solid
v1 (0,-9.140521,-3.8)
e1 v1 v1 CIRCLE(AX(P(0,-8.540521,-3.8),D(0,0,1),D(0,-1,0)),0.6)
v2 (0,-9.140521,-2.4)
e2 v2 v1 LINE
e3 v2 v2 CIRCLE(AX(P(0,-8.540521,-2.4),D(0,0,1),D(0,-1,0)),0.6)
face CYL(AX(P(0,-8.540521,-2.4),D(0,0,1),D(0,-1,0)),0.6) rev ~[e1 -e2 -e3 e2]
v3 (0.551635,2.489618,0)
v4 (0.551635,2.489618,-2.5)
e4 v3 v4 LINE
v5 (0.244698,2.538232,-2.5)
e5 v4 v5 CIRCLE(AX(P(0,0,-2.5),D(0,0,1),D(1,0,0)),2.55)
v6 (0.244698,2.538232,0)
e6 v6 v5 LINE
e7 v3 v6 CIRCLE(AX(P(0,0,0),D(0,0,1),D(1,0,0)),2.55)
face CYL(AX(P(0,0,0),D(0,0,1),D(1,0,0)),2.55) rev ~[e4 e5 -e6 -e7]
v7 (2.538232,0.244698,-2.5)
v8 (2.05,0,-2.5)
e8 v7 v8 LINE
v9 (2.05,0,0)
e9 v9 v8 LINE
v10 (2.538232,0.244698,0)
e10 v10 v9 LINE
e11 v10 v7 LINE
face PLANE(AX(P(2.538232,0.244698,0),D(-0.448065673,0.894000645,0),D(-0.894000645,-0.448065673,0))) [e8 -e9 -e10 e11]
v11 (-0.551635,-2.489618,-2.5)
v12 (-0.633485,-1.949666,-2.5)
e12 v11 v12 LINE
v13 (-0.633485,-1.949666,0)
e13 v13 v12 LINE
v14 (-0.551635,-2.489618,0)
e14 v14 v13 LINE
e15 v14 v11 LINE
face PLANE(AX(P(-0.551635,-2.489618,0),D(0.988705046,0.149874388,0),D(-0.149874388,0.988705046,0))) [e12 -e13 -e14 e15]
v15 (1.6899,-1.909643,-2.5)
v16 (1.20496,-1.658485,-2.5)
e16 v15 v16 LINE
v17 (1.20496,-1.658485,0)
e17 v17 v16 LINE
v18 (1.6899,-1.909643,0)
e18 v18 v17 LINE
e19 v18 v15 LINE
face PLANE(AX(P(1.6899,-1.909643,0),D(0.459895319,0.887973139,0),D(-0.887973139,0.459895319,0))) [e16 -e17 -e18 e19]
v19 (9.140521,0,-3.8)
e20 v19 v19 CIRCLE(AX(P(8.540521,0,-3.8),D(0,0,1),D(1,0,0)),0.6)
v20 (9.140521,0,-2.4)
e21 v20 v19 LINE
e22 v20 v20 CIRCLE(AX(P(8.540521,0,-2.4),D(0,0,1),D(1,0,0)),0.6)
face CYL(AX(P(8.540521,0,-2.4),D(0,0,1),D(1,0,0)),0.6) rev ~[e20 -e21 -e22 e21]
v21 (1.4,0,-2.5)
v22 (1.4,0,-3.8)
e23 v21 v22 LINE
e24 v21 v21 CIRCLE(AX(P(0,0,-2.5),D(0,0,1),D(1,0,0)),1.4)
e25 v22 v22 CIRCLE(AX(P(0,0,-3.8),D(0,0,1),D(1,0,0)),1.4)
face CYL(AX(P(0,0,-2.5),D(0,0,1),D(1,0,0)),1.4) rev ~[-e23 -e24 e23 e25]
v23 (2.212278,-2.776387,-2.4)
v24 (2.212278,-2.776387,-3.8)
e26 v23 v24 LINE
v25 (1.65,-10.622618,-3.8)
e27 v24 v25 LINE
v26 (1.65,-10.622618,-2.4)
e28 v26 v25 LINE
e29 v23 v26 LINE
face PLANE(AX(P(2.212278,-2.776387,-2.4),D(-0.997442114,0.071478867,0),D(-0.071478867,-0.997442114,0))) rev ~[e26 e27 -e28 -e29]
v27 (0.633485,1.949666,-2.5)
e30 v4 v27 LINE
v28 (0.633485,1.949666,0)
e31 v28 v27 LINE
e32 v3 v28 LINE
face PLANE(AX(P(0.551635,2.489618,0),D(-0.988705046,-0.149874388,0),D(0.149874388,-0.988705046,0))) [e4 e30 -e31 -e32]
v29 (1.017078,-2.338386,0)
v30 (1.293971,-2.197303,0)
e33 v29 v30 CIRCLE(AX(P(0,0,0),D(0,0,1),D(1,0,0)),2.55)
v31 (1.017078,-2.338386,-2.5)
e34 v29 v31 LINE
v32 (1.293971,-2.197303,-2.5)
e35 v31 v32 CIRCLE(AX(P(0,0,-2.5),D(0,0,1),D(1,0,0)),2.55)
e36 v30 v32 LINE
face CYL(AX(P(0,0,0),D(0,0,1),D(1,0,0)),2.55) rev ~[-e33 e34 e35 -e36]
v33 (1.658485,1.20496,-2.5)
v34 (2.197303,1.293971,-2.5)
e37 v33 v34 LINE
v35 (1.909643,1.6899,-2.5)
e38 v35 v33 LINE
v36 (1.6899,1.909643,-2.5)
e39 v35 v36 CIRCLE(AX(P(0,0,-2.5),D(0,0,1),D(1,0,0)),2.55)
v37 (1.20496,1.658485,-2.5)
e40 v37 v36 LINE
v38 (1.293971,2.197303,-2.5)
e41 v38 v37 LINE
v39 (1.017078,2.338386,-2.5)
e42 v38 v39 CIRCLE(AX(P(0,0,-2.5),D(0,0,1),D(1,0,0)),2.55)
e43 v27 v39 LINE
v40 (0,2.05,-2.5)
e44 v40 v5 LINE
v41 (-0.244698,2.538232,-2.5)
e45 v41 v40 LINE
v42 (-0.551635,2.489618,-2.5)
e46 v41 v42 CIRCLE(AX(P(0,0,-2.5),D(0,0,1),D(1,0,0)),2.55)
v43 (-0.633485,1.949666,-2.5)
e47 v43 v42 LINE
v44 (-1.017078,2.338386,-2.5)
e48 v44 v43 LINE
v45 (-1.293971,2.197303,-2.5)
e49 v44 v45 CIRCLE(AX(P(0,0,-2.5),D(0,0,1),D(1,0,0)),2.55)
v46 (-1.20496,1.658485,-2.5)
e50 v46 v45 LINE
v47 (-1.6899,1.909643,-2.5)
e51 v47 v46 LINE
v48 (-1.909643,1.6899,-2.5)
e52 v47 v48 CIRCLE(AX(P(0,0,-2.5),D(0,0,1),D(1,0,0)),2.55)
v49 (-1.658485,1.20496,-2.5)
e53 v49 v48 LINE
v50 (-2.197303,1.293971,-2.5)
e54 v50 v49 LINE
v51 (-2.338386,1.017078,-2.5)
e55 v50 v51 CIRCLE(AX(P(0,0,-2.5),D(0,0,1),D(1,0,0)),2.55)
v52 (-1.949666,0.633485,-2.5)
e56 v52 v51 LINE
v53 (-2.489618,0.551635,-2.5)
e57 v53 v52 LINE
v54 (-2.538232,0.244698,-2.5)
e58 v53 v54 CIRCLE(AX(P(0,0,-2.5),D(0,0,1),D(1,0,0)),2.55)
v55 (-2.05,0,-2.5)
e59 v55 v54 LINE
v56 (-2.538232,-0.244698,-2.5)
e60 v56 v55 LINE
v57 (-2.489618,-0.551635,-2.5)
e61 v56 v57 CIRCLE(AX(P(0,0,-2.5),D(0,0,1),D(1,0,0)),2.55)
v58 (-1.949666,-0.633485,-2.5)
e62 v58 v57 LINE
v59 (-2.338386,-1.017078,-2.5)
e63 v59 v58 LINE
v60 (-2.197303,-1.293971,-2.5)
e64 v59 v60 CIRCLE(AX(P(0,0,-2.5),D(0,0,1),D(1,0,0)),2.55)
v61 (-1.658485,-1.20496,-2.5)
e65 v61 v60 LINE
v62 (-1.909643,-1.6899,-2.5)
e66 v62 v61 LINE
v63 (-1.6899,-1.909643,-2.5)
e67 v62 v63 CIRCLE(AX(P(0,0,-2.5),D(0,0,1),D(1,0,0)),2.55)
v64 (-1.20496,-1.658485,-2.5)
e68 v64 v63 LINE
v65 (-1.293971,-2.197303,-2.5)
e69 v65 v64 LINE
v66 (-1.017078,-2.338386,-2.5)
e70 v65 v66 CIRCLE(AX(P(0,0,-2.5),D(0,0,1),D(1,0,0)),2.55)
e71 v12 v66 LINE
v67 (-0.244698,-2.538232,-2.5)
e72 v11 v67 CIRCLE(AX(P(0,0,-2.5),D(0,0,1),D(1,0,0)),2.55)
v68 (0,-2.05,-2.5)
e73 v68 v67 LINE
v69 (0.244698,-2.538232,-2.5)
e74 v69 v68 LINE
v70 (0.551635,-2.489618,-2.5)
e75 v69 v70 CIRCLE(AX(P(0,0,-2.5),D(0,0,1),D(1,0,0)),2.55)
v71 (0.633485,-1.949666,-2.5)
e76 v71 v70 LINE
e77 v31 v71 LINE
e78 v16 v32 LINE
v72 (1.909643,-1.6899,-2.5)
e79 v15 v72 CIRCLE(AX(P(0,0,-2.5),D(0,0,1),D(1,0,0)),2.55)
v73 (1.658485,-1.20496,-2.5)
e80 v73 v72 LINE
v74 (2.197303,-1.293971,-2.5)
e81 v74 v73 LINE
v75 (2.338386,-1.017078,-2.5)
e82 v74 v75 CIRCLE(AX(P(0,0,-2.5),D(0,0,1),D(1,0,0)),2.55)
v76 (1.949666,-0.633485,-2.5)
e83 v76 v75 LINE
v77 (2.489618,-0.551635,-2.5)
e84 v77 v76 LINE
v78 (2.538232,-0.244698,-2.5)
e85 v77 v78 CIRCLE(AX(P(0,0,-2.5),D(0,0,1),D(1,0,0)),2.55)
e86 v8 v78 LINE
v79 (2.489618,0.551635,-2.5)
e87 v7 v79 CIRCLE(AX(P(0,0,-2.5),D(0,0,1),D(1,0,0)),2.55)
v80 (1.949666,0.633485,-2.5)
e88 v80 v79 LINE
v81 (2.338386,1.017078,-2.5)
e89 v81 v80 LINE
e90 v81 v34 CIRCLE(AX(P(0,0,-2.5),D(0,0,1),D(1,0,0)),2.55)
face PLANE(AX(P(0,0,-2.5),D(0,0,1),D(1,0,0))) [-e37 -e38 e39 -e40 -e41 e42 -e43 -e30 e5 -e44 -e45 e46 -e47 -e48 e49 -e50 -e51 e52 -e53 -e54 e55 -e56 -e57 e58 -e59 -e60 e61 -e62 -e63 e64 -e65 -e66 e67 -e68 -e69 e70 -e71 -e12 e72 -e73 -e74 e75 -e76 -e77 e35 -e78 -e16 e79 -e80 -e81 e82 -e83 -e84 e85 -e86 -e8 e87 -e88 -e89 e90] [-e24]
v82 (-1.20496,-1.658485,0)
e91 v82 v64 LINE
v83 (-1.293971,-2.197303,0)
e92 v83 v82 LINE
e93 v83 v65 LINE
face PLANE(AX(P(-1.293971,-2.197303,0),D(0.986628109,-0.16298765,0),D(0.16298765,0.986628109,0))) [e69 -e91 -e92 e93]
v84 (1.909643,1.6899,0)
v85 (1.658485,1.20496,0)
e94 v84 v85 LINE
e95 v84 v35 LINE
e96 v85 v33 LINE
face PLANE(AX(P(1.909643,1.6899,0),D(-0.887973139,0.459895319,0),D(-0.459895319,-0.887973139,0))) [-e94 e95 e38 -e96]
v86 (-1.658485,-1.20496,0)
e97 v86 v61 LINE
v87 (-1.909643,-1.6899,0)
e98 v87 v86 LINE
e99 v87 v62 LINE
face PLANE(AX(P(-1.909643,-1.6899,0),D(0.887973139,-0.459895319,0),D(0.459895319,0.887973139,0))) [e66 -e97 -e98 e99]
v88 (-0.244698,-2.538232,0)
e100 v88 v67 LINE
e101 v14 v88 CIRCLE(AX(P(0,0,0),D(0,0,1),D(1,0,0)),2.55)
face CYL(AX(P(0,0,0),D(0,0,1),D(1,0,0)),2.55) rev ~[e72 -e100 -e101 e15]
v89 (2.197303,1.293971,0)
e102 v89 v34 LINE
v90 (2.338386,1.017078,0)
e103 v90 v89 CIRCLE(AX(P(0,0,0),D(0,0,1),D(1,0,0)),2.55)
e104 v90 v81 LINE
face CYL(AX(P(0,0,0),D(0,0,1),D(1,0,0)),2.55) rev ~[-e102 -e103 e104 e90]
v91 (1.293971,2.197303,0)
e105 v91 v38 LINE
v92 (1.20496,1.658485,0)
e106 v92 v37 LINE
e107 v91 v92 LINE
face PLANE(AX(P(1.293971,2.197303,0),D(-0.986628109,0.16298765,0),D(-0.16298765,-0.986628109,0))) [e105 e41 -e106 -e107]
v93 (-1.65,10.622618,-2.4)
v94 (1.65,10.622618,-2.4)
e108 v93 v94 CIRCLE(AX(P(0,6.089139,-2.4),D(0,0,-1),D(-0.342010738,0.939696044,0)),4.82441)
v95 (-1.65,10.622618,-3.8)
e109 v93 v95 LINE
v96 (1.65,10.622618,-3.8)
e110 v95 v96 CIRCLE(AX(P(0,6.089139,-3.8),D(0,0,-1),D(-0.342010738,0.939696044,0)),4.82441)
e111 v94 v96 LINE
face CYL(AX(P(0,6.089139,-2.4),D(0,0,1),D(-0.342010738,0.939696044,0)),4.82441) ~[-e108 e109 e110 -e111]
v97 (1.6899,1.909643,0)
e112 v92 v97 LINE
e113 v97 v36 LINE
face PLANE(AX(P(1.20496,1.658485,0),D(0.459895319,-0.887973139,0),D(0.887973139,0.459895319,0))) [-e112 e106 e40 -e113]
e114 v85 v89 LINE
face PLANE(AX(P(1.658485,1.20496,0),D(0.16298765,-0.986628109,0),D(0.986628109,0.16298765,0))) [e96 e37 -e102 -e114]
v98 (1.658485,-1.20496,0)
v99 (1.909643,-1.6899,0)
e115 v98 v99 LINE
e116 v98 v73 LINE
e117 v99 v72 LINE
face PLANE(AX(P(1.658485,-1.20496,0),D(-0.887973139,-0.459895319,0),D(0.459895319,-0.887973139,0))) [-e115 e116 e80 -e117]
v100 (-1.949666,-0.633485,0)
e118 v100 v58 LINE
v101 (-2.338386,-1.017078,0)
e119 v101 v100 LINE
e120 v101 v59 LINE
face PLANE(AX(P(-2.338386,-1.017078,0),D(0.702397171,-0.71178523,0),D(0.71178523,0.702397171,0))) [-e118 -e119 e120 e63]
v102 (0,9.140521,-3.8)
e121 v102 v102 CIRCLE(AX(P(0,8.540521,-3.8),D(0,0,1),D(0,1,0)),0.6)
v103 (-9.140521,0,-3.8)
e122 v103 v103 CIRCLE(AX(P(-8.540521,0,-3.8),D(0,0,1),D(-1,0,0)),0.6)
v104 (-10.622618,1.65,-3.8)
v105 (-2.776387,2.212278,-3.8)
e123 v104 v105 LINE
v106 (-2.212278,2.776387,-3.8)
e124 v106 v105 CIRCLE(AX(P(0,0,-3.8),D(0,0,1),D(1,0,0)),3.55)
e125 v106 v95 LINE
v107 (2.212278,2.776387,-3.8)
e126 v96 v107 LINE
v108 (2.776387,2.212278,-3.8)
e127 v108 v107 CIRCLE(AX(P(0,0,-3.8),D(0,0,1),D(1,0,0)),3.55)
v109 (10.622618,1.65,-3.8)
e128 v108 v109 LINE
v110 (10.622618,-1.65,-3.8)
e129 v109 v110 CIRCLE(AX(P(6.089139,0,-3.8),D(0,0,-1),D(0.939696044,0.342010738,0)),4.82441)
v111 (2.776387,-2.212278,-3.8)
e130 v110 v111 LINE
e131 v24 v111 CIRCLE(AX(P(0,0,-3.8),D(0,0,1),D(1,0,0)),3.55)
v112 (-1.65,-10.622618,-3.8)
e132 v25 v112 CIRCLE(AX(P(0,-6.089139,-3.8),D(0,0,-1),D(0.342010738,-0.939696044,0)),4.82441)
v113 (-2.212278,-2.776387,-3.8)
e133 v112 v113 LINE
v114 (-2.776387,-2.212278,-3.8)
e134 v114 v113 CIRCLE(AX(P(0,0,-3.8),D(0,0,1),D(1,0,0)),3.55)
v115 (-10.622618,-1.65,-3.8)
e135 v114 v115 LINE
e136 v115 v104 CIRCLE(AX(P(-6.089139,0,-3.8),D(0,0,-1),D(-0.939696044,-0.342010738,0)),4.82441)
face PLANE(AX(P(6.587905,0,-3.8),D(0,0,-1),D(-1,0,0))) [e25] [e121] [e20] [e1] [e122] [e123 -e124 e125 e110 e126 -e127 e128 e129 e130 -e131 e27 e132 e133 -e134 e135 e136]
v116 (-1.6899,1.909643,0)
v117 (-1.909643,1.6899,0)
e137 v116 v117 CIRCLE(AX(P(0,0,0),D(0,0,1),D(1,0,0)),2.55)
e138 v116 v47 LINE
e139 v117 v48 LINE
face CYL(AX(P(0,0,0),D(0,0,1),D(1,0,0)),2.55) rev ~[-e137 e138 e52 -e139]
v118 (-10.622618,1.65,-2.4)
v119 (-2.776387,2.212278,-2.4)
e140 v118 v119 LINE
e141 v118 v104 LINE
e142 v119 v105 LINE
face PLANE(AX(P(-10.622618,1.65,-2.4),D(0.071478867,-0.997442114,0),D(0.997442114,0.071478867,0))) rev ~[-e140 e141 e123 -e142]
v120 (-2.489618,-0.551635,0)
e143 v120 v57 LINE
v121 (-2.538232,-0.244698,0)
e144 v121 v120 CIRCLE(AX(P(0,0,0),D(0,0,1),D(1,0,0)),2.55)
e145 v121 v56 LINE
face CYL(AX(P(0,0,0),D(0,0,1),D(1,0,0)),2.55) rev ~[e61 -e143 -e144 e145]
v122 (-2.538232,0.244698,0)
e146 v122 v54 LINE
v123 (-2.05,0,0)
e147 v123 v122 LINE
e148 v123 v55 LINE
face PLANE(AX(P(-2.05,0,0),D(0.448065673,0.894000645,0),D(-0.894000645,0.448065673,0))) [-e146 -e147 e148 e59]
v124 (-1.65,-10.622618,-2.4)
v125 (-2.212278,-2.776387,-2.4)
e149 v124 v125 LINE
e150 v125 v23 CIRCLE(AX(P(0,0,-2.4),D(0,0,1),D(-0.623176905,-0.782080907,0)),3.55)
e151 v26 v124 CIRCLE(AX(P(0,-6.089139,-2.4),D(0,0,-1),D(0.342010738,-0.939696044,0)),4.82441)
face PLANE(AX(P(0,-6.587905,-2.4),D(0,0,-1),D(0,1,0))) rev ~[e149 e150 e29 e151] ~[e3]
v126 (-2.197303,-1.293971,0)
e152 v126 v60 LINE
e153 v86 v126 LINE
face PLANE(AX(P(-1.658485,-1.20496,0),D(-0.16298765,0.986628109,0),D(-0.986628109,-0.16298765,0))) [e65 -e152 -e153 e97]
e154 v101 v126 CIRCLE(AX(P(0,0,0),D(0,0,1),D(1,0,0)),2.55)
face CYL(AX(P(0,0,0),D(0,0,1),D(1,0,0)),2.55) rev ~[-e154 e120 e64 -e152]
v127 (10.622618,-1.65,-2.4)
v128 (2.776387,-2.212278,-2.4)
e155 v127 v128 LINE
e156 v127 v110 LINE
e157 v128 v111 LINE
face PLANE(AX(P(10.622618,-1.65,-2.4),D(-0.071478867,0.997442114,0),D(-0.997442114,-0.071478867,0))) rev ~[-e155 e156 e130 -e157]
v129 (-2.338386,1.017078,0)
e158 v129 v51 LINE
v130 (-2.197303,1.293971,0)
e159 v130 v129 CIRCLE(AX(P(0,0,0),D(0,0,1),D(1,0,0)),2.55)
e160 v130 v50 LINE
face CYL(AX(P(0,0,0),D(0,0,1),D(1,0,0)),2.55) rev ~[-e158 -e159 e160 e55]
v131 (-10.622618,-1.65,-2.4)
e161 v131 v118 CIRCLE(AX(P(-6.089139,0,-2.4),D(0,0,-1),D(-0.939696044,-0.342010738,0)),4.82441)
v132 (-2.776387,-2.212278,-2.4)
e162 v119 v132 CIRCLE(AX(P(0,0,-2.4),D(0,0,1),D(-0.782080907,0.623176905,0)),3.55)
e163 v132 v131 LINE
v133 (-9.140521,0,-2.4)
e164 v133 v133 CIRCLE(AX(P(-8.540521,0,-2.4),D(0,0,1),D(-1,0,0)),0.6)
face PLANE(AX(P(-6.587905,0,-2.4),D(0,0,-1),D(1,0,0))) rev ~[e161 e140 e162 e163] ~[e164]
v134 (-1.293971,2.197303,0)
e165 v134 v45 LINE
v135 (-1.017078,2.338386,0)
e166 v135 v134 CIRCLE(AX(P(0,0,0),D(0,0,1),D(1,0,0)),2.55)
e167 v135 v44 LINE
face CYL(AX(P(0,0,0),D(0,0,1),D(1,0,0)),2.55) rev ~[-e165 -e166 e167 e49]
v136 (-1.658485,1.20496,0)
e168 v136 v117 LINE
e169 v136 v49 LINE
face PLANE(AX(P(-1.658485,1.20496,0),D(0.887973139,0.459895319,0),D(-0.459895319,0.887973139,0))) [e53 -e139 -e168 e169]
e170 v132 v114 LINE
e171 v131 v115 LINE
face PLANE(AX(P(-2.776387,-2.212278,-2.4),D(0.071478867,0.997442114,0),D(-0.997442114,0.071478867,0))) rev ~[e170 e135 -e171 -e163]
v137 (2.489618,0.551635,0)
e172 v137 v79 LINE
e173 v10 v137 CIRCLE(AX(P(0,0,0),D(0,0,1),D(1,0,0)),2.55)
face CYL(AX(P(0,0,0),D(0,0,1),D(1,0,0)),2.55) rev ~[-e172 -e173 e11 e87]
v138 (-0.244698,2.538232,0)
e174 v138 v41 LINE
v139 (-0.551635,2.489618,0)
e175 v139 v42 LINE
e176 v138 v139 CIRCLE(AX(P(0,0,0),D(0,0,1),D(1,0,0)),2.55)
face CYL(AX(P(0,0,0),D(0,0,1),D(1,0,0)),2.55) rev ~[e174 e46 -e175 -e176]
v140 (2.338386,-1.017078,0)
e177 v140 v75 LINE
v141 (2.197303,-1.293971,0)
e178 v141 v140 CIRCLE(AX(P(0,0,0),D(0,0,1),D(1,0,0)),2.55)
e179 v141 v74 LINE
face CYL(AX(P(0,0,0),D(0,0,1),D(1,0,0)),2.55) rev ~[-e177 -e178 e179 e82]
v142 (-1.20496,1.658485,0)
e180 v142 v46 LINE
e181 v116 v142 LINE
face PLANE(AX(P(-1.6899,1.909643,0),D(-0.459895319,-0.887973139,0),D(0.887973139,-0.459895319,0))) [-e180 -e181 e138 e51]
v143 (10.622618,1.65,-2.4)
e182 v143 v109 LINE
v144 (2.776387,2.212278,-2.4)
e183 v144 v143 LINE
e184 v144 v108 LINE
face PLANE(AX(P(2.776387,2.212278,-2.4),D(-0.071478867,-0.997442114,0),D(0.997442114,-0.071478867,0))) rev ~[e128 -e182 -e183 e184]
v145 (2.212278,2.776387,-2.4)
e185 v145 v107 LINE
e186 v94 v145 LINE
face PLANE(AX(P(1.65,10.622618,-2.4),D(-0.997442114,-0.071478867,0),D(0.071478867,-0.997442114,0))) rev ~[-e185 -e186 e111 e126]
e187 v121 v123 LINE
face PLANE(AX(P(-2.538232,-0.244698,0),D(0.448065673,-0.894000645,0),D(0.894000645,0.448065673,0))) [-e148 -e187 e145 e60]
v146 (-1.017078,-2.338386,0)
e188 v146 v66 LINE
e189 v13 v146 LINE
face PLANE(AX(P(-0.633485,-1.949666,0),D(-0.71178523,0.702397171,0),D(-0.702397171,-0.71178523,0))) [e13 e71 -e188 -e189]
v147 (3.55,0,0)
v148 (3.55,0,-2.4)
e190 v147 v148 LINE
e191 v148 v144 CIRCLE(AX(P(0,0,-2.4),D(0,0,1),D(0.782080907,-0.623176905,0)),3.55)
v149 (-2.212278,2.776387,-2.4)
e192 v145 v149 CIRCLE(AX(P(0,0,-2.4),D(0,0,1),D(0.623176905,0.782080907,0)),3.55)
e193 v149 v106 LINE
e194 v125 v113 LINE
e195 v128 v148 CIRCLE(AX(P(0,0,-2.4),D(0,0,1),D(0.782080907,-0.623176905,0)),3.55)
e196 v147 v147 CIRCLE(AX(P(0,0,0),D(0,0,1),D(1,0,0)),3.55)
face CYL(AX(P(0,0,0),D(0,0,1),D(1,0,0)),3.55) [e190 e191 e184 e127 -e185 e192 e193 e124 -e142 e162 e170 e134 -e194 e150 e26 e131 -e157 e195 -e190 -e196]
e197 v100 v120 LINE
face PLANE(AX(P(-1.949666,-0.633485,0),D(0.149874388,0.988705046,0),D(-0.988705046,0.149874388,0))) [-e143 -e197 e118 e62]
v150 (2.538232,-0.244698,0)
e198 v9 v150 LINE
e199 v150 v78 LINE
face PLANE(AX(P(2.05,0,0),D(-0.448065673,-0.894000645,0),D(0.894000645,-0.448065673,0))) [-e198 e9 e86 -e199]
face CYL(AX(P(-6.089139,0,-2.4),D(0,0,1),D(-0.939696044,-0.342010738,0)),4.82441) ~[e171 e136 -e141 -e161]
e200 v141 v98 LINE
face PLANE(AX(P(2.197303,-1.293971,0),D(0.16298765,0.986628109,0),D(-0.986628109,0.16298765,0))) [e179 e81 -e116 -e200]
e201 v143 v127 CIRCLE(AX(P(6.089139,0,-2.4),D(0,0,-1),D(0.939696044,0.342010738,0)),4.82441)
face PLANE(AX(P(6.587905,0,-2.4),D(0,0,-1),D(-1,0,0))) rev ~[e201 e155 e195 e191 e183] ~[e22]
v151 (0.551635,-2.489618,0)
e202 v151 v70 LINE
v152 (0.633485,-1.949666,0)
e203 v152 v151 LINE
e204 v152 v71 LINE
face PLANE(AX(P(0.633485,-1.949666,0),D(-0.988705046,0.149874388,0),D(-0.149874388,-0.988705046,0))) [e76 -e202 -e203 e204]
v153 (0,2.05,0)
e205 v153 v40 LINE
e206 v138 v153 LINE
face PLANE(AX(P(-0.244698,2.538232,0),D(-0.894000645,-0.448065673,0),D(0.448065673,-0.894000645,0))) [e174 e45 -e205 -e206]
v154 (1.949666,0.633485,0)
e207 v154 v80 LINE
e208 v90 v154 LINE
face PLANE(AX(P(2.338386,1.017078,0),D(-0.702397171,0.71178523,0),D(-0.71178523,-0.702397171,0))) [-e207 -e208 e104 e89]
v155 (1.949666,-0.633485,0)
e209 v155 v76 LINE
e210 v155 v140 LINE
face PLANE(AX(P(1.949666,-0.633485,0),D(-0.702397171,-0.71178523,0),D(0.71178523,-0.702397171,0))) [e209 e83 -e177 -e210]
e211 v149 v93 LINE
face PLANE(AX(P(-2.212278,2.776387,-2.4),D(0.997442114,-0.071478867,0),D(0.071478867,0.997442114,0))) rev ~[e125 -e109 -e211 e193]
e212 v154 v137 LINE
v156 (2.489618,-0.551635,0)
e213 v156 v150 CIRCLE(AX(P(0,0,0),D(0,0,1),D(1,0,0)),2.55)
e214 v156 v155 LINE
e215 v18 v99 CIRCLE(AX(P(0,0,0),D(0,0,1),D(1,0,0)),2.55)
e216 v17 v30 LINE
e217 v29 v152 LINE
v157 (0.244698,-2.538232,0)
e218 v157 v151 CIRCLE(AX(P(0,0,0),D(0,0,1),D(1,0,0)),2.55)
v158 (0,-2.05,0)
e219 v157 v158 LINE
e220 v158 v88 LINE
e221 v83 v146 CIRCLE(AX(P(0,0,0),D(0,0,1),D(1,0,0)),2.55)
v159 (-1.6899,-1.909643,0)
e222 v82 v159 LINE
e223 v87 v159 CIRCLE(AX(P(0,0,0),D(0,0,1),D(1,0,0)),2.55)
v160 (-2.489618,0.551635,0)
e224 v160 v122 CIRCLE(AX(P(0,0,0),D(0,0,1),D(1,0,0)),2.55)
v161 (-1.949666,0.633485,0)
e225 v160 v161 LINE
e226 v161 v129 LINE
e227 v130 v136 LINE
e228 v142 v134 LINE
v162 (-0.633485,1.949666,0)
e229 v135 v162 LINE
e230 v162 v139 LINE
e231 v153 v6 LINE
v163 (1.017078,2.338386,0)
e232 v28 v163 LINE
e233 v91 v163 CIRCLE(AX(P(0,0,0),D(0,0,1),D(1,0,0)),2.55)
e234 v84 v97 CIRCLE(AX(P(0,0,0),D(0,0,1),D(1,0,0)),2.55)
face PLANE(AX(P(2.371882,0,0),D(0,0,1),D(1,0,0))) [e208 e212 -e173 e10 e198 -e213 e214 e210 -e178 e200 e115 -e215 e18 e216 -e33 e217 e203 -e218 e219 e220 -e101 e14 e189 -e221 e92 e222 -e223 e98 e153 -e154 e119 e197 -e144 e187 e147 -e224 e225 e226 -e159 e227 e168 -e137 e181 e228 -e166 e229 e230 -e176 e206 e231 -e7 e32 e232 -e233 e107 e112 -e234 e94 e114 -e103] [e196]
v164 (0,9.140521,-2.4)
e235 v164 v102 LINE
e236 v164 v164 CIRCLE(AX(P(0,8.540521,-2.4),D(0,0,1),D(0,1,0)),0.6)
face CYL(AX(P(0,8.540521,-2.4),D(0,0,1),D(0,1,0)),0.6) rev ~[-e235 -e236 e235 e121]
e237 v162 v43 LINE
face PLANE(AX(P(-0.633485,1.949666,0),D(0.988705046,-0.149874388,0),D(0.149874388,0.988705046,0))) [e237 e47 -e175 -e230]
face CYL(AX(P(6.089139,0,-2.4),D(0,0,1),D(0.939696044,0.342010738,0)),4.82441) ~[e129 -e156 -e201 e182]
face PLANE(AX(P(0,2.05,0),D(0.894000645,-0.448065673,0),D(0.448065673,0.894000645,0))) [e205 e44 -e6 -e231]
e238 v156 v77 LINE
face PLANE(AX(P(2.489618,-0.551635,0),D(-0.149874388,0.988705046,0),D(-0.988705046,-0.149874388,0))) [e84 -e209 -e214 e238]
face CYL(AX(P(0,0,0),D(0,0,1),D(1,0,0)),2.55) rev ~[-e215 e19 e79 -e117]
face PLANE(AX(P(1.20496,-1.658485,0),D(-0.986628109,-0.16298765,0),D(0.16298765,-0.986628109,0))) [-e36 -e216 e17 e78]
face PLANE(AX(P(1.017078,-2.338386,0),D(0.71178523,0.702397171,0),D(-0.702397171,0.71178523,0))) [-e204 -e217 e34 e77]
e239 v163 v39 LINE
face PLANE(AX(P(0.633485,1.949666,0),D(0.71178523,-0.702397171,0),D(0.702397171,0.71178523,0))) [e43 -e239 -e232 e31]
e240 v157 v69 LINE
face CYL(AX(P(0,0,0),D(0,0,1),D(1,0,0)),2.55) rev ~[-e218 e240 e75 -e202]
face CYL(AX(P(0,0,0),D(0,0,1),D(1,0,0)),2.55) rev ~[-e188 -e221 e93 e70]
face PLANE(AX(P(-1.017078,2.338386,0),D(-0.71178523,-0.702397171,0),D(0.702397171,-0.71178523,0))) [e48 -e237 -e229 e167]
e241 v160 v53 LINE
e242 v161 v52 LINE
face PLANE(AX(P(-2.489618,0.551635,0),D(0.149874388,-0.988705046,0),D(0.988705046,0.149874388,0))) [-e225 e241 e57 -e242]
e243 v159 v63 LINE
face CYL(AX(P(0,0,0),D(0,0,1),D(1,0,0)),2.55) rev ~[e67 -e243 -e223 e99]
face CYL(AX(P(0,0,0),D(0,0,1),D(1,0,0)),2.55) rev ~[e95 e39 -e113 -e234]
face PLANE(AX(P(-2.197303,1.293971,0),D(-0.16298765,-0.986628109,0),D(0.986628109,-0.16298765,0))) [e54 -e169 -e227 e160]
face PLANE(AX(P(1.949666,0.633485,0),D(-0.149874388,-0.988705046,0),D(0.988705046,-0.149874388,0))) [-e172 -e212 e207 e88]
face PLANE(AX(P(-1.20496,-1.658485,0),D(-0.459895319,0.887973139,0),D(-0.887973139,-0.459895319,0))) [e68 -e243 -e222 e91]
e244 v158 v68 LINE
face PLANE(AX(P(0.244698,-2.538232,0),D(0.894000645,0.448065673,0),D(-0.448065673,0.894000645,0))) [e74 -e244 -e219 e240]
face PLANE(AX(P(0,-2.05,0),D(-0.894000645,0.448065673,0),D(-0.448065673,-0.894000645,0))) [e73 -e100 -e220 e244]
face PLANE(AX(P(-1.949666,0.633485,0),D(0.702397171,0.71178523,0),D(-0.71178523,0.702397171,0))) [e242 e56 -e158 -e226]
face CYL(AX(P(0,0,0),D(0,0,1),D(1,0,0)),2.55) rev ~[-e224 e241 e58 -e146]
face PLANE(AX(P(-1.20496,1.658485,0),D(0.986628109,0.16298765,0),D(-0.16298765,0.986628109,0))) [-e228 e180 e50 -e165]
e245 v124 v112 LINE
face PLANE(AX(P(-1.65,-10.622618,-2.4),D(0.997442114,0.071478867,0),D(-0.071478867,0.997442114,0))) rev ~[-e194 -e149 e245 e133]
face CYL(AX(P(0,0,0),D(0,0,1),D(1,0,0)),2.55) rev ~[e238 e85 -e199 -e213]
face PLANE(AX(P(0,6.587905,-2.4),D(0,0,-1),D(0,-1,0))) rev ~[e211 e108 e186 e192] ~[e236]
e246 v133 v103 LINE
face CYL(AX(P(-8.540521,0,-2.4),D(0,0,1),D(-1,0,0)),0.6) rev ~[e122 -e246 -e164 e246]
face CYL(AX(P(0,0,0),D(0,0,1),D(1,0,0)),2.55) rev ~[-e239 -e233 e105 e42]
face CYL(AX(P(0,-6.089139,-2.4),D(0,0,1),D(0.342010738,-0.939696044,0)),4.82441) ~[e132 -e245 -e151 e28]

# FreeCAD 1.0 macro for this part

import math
import FreeCAD as App
import Part
import Sketcher

V = App.Vector
Q = App.Units.Quantity

doc = App.newDocument("Part")
params = doc.addObject("Spreadsheet::Sheet", "Params")
for row, (alias, value) in enumerate([
    ("sketch1_diameter", "7.1 mm"),
    ("pad1_length", "3.8 mm"),
    ("sketch2_radius", "3.55 mm"),
    ("pad2_length", "1.4 mm"),
    ("sketch3_diameter", "5.1 mm"),
    ("pocket1_length", "2.5 mm"),
    ("sketch4_radius", "2.55 mm"),
    ("pad3_length", "2.5 mm"),
    ("sketch5_diameter", "2.8 mm"),
    ("sketch6_diameter", "1.2 mm"),
], start=1):
    params.set(f"A{row}", alias)
    params.set(f"B{row}", "=" + value)
    params.setAlias(f"B{row}", alias)

body = doc.addObject("PartDesign::Body", "Body")

# Sketch on XY plane
sketch1 = doc.addObject("Sketcher::SketchObject", "Sketch")
body.addObject(sketch1)
sketch1.AttachmentSupport = (doc.XY_Plane, [""])
sketch1.MapMode = "FlatFace"
sketch1.addGeometry(Part.Circle(V(0, 0, 0), V(0, 0, 1), 3.5), False)
sketch1.addConstraint(Sketcher.Constraint("Coincident", 0, 3, -1, 1))
sketch1.addConstraint(Sketcher.Constraint("Diameter", 0, Q("7.1 mm")))
sketch1.setExpression("Constraints[1]", "Params.sketch1_diameter")
pad1 = doc.addObject("PartDesign::Pad", "Pad")
body.addObject(pad1)
pad1.Profile = sketch1
pad1.setExpression("Length", "Params.pad1_length")
pad1.Reversed = True

# Sketch on XY plane
sketch2 = doc.addObject("Sketcher::SketchObject", "Sketch001")
body.addObject(sketch2)
sketch2.AttachmentSupport = (doc.XY_Plane, [""])
sketch2.MapMode = "FlatFace"
sketch2.AttachmentOffset = App.Placement(V(0, 0, -2.4), App.Rotation())
sketch2.addGeometry(Part.LineSegment(V(10.6, 1.6, 0), V(2.8, 2.2, 0)), False)
sketch2.addGeometry(Part.ArcOfCircle(Part.Circle(V(0, 0, 0), V(0, 0, 1), 3.5), math.radians(-39), math.radians(39)), False)
sketch2.addGeometry(Part.LineSegment(V(2.8, -2.2, 0), V(10.6, -1.6, 0)), False)
sketch2.addGeometry(Part.ArcOfCircle(Part.Circle(V(6.1, 0, 0), V(0, 0, 1), 4.8), math.radians(-20), math.radians(20)), False)
sketch2.addConstraint(Sketcher.Constraint("Coincident", 0, 2, 1, 2))
sketch2.addConstraint(Sketcher.Constraint("Coincident", 1, 1, 2, 1))
sketch2.addConstraint(Sketcher.Constraint("Coincident", 2, 2, 3, 1))
sketch2.addConstraint(Sketcher.Constraint("Coincident", 3, 2, 0, 1))
sketch2.addConstraint(Sketcher.Constraint("Coincident", 1, 3, -1, 1))
sketch2.addConstraint(Sketcher.Constraint("Symmetric", 2, 2, 3, 2, -1))
sketch2.addConstraint(Sketcher.Constraint("Vertical", 0, 2, 1, 1))
sketch2.addConstraint(Sketcher.Constraint("Radius", 1, Q("3.55 mm")))
sketch2.addConstraint(Sketcher.Constraint("DistanceY", 2, 2, 3, 2, Q("3.3 mm")))
sketch2.addConstraint(Sketcher.Constraint("Radius", 3, Q("4.82441 mm")))
sketch2.addConstraint(Sketcher.Constraint("Distance", 0, Q("7.866352 mm")))
sketch2.addConstraint(Sketcher.Constraint("DistanceX", -1, 1, 3, 3, Q("6.089139 mm")))
sketch2.setExpression("Constraints[7]", "Params.sketch2_radius")
pad2 = doc.addObject("PartDesign::Pad", "Pad001")
body.addObject(pad2)
pad2.Profile = sketch2
pad2.setExpression("Length", "Params.pad2_length")
pad2.Reversed = True

# Sketch on XY plane
sketch3 = doc.addObject("Sketcher::SketchObject", "Sketch002")
body.addObject(sketch3)
sketch3.AttachmentSupport = (doc.XY_Plane, [""])
sketch3.MapMode = "FlatFace"
sketch3.addGeometry(Part.Circle(V(0, 0, 0), V(0, 0, 1), 2.5), False)
sketch3.addConstraint(Sketcher.Constraint("Coincident", 0, 3, -1, 1))
sketch3.addConstraint(Sketcher.Constraint("Diameter", 0, Q("5.1 mm")))
sketch3.setExpression("Constraints[1]", "Params.sketch3_diameter")
pocket1 = doc.addObject("PartDesign::Pocket", "Pocket")
body.addObject(pocket1)
pocket1.Profile = sketch3
pocket1.setExpression("Length", "Params.pocket1_length")

# Sketch on XY plane
sketch4 = doc.addObject("Sketcher::SketchObject", "Sketch003")
body.addObject(sketch4)
sketch4.AttachmentSupport = (doc.XY_Plane, [""])
sketch4.MapMode = "FlatFace"
sketch4.addGeometry(Part.LineSegment(V(-0.24, 2.54, 0), V(0, 2.05, 0)), False)
sketch4.addGeometry(Part.LineSegment(V(0, 2.05, 0), V(0.24, 2.54, 0)), False)
sketch4.addGeometry(Part.ArcOfCircle(Part.Circle(V(0, 0, 0), V(0, 0, 1), 2.55), math.radians(84.49), math.radians(95.51)), False)
sketch4.addGeometry(Part.LineSegment(V(0.55, 2.49, 0), V(0.63, 1.95, 0)), False)
sketch4.addGeometry(Part.LineSegment(V(0.63, 1.95, 0), V(1.02, 2.34, 0)), False)
sketch4.addGeometry(Part.ArcOfCircle(Part.Circle(V(0, 0, 0), V(0, 0, 1), 2.55), math.radians(66.49), math.radians(77.51)), False)
sketch4.addGeometry(Part.LineSegment(V(1.29, 2.2, 0), V(1.2, 1.66, 0)), False)
sketch4.addGeometry(Part.LineSegment(V(1.2, 1.66, 0), V(1.69, 1.91, 0)), False)
sketch4.addGeometry(Part.ArcOfCircle(Part.Circle(V(0, 0, 0), V(0, 0, 1), 2.55), math.radians(48.49), math.radians(59.51)), False)
sketch4.addGeometry(Part.LineSegment(V(1.91, 1.69, 0), V(1.66, 1.2, 0)), False)
sketch4.addGeometry(Part.LineSegment(V(1.66, 1.2, 0), V(2.2, 1.29, 0)), False)
sketch4.addGeometry(Part.ArcOfCircle(Part.Circle(V(0, 0, 0), V(0, 0, 1), 2.55), math.radians(30.49), math.radians(41.51)), False)
sketch4.addGeometry(Part.LineSegment(V(2.34, 1.02, 0), V(1.95, 0.63, 0)), False)
sketch4.addGeometry(Part.LineSegment(V(1.95, 0.63, 0), V(2.49, 0.55, 0)), False)
sketch4.addGeometry(Part.ArcOfCircle(Part.Circle(V(0, 0, 0), V(0, 0, 1), 2.55), math.radians(12.49), math.radians(23.51)), False)
sketch4.addGeometry(Part.LineSegment(V(2.54, 0.24, 0), V(2.05, 0, 0)), False)
sketch4.addGeometry(Part.LineSegment(V(2.05, 0, 0), V(2.54, -0.24, 0)), False)
sketch4.addGeometry(Part.ArcOfCircle(Part.Circle(V(0, 0, 0), V(0, 0, 1), 2.55), math.radians(-5.51), math.radians(5.51)), False)
sketch4.addGeometry(Part.LineSegment(V(2.49, -0.55, 0), V(1.95, -0.63, 0)), False)
sketch4.addGeometry(Part.LineSegment(V(1.95, -0.63, 0), V(2.34, -1.02, 0)), False)
sketch4.addGeometry(Part.ArcOfCircle(Part.Circle(V(0, 0, 0), V(0, 0, 1), 2.55), math.radians(-23.51), math.radians(-12.49)), False)
sketch4.addGeometry(Part.LineSegment(V(2.2, -1.29, 0), V(1.66, -1.2, 0)), False)
sketch4.addGeometry(Part.LineSegment(V(1.66, -1.2, 0), V(1.91, -1.69, 0)), False)
sketch4.addGeometry(Part.ArcOfCircle(Part.Circle(V(0, 0, 0), V(0, 0, 1), 2.55), math.radians(-41.51), math.radians(-30.49)), False)
sketch4.addGeometry(Part.LineSegment(V(1.69, -1.91, 0), V(1.2, -1.66, 0)), False)
sketch4.addGeometry(Part.LineSegment(V(1.2, -1.66, 0), V(1.29, -2.2, 0)), False)
sketch4.addGeometry(Part.ArcOfCircle(Part.Circle(V(0, 0, 0), V(0, 0, 1), 2.55), math.radians(-59.51), math.radians(-48.49)), False)
sketch4.addGeometry(Part.LineSegment(V(1.02, -2.34, 0), V(0.63, -1.95, 0)), False)
sketch4.addGeometry(Part.LineSegment(V(0.63, -1.95, 0), V(0.55, -2.49, 0)), False)
sketch4.addGeometry(Part.ArcOfCircle(Part.Circle(V(0, 0, 0), V(0, 0, 1), 2.55), math.radians(-77.51), math.radians(-66.49)), False)
sketch4.addGeometry(Part.LineSegment(V(0.24, -2.54, 0), V(0, -2.05, 0)), False)
sketch4.addGeometry(Part.LineSegment(V(0, -2.05, 0), V(-0.24, -2.54, 0)), False)
sketch4.addGeometry(Part.ArcOfCircle(Part.Circle(V(0, 0, 0), V(0, 0, 1), 2.55), math.radians(-95.51), math.radians(-84.49)), False)
sketch4.addGeometry(Part.LineSegment(V(-0.55, -2.49, 0), V(-0.63, -1.95, 0)), False)
sketch4.addGeometry(Part.LineSegment(V(-0.63, -1.95, 0), V(-1.02, -2.34, 0)), False)
sketch4.addGeometry(Part.ArcOfCircle(Part.Circle(V(0, 0, 0), V(0, 0, 1), 2.55), math.radians(-113.51), math.radians(-102.49)), False)
sketch4.addGeometry(Part.LineSegment(V(-1.29, -2.2, 0), V(-1.2, -1.66, 0)), False)
sketch4.addGeometry(Part.LineSegment(V(-1.2, -1.66, 0), V(-1.69, -1.91, 0)), False)
sketch4.addGeometry(Part.ArcOfCircle(Part.Circle(V(0, 0, 0), V(0, 0, 1), 2.55), math.radians(-131.51), math.radians(-120.49)), False)
sketch4.addGeometry(Part.LineSegment(V(-1.91, -1.69, 0), V(-1.66, -1.2, 0)), False)
sketch4.addGeometry(Part.LineSegment(V(-1.66, -1.2, 0), V(-2.2, -1.29, 0)), False)
sketch4.addGeometry(Part.ArcOfCircle(Part.Circle(V(0, 0, 0), V(0, 0, 1), 2.55), math.radians(-149.51), math.radians(-138.49)), False)
sketch4.addGeometry(Part.LineSegment(V(-2.34, -1.02, 0), V(-1.95, -0.63, 0)), False)
sketch4.addGeometry(Part.LineSegment(V(-1.95, -0.63, 0), V(-2.49, -0.55, 0)), False)
sketch4.addGeometry(Part.ArcOfCircle(Part.Circle(V(0, 0, 0), V(0, 0, 1), 2.55), math.radians(-167.51), math.radians(-156.49)), False)
sketch4.addGeometry(Part.LineSegment(V(-2.54, -0.24, 0), V(-2.05, 0, 0)), False)
sketch4.addGeometry(Part.LineSegment(V(-2.05, 0, 0), V(-2.54, 0.24, 0)), False)
sketch4.addGeometry(Part.ArcOfCircle(Part.Circle(V(0, 0, 0), V(0, 0, 1), 2.55), math.radians(174.49), math.radians(185.51)), False)
sketch4.addGeometry(Part.LineSegment(V(-2.49, 0.55, 0), V(-1.95, 0.63, 0)), False)
sketch4.addGeometry(Part.LineSegment(V(-1.95, 0.63, 0), V(-2.34, 1.02, 0)), False)
sketch4.addGeometry(Part.ArcOfCircle(Part.Circle(V(0, 0, 0), V(0, 0, 1), 2.55), math.radians(156.49), math.radians(167.51)), False)
sketch4.addGeometry(Part.LineSegment(V(-2.2, 1.29, 0), V(-1.66, 1.2, 0)), False)
sketch4.addGeometry(Part.LineSegment(V(-1.66, 1.2, 0), V(-1.91, 1.69, 0)), False)
sketch4.addGeometry(Part.ArcOfCircle(Part.Circle(V(0, 0, 0), V(0, 0, 1), 2.55), math.radians(138.49), math.radians(149.51)), False)
sketch4.addGeometry(Part.LineSegment(V(-1.69, 1.91, 0), V(-1.2, 1.66, 0)), False)
sketch4.addGeometry(Part.LineSegment(V(-1.2, 1.66, 0), V(-1.29, 2.2, 0)), False)
sketch4.addGeometry(Part.ArcOfCircle(Part.Circle(V(0, 0, 0), V(0, 0, 1), 2.55), math.radians(120.49), math.radians(131.51)), False)
sketch4.addGeometry(Part.LineSegment(V(-1.02, 2.34, 0), V(-0.63, 1.95, 0)), False)
sketch4.addGeometry(Part.LineSegment(V(-0.63, 1.95, 0), V(-0.55, 2.49, 0)), False)
sketch4.addGeometry(Part.ArcOfCircle(Part.Circle(V(0, 0, 0), V(0, 0, 1), 2.55), math.radians(102.49), math.radians(113.51)), False)
sketch4.addConstraint(Sketcher.Constraint("Coincident", 0, 2, 1, 1))
sketch4.addConstraint(Sketcher.Constraint("Coincident", 1, 2, 2, 1))
sketch4.addConstraint(Sketcher.Constraint("Coincident", 2, 2, 0, 1))
sketch4.addConstraint(Sketcher.Constraint("Coincident", 3, 2, 4, 1))
sketch4.addConstraint(Sketcher.Constraint("Coincident", 4, 2, 5, 1))
sketch4.addConstraint(Sketcher.Constraint("Coincident", 5, 2, 3, 1))
sketch4.addConstraint(Sketcher.Constraint("Coincident", 6, 2, 7, 1))
sketch4.addConstraint(Sketcher.Constraint("Coincident", 7, 2, 8, 1))
sketch4.addConstraint(Sketcher.Constraint("Coincident", 8, 2, 6, 1))
sketch4.addConstraint(Sketcher.Constraint("Coincident", 9, 2, 10, 1))
sketch4.addConstraint(Sketcher.Constraint("Coincident", 10, 2, 11, 1))
sketch4.addConstraint(Sketcher.Constraint("Coincident", 11, 2, 9, 1))
sketch4.addConstraint(Sketcher.Constraint("Coincident", 12, 2, 13, 1))
sketch4.addConstraint(Sketcher.Constraint("Coincident", 13, 2, 14, 1))
sketch4.addConstraint(Sketcher.Constraint("Coincident", 14, 2, 12, 1))
sketch4.addConstraint(Sketcher.Constraint("Coincident", 15, 2, 16, 1))
sketch4.addConstraint(Sketcher.Constraint("Coincident", 16, 2, 17, 1))
sketch4.addConstraint(Sketcher.Constraint("Coincident", 17, 2, 15, 1))
sketch4.addConstraint(Sketcher.Constraint("Coincident", 18, 2, 19, 1))
sketch4.addConstraint(Sketcher.Constraint("Coincident", 19, 2, 20, 1))
sketch4.addConstraint(Sketcher.Constraint("Coincident", 20, 2, 18, 1))
sketch4.addConstraint(Sketcher.Constraint("Coincident", 21, 2, 22, 1))
sketch4.addConstraint(Sketcher.Constraint("Coincident", 22, 2, 23, 1))
sketch4.addConstraint(Sketcher.Constraint("Coincident", 23, 2, 21, 1))
sketch4.addConstraint(Sketcher.Constraint("Coincident", 24, 2, 25, 1))
sketch4.addConstraint(Sketcher.Constraint("Coincident", 25, 2, 26, 1))
sketch4.addConstraint(Sketcher.Constraint("Coincident", 26, 2, 24, 1))
sketch4.addConstraint(Sketcher.Constraint("Coincident", 27, 2, 28, 1))
sketch4.addConstraint(Sketcher.Constraint("Coincident", 28, 2, 29, 1))
sketch4.addConstraint(Sketcher.Constraint("Coincident", 29, 2, 27, 1))
sketch4.addConstraint(Sketcher.Constraint("Coincident", 30, 2, 31, 1))
sketch4.addConstraint(Sketcher.Constraint("Coincident", 31, 2, 32, 1))
sketch4.addConstraint(Sketcher.Constraint("Coincident", 32, 2, 30, 1))
sketch4.addConstraint(Sketcher.Constraint("Coincident", 33, 2, 34, 1))
sketch4.addConstraint(Sketcher.Constraint("Coincident", 34, 2, 35, 1))
sketch4.addConstraint(Sketcher.Constraint("Coincident", 35, 2, 33, 1))
sketch4.addConstraint(Sketcher.Constraint("Coincident", 36, 2, 37, 1))
sketch4.addConstraint(Sketcher.Constraint("Coincident", 37, 2, 38, 1))
sketch4.addConstraint(Sketcher.Constraint("Coincident", 38, 2, 36, 1))
sketch4.addConstraint(Sketcher.Constraint("Coincident", 39, 2, 40, 1))
sketch4.addConstraint(Sketcher.Constraint("Coincident", 40, 2, 41, 1))
sketch4.addConstraint(Sketcher.Constraint("Coincident", 41, 2, 39, 1))
sketch4.addConstraint(Sketcher.Constraint("Coincident", 42, 2, 43, 1))
sketch4.addConstraint(Sketcher.Constraint("Coincident", 43, 2, 44, 1))
sketch4.addConstraint(Sketcher.Constraint("Coincident", 44, 2, 42, 1))
sketch4.addConstraint(Sketcher.Constraint("Coincident", 45, 2, 46, 1))
sketch4.addConstraint(Sketcher.Constraint("Coincident", 46, 2, 47, 1))
sketch4.addConstraint(Sketcher.Constraint("Coincident", 47, 2, 45, 1))
sketch4.addConstraint(Sketcher.Constraint("Coincident", 48, 2, 49, 1))
sketch4.addConstraint(Sketcher.Constraint("Coincident", 49, 2, 50, 1))
sketch4.addConstraint(Sketcher.Constraint("Coincident", 50, 2, 48, 1))
sketch4.addConstraint(Sketcher.Constraint("Coincident", 51, 2, 52, 1))
sketch4.addConstraint(Sketcher.Constraint("Coincident", 52, 2, 53, 1))
sketch4.addConstraint(Sketcher.Constraint("Coincident", 53, 2, 51, 1))
sketch4.addConstraint(Sketcher.Constraint("Coincident", 54, 2, 55, 1))
sketch4.addConstraint(Sketcher.Constraint("Coincident", 55, 2, 56, 1))
sketch4.addConstraint(Sketcher.Constraint("Coincident", 56, 2, 54, 1))
sketch4.addConstraint(Sketcher.Constraint("Coincident", 57, 2, 58, 1))
sketch4.addConstraint(Sketcher.Constraint("Coincident", 58, 2, 59, 1))
sketch4.addConstraint(Sketcher.Constraint("Coincident", 59, 2, 57, 1))
sketch4.addConstraint(Sketcher.Constraint("Coincident", 2, 3, -1, 1))
sketch4.addConstraint(Sketcher.Constraint("Coincident", 5, 3, -1, 1))
sketch4.addConstraint(Sketcher.Constraint("Coincident", 8, 3, -1, 1))
sketch4.addConstraint(Sketcher.Constraint("Coincident", 11, 3, -1, 1))
sketch4.addConstraint(Sketcher.Constraint("Coincident", 14, 3, -1, 1))
sketch4.addConstraint(Sketcher.Constraint("Coincident", 17, 3, -1, 1))
sketch4.addConstraint(Sketcher.Constraint("Coincident", 20, 3, -1, 1))
sketch4.addConstraint(Sketcher.Constraint("Coincident", 23, 3, -1, 1))
sketch4.addConstraint(Sketcher.Constraint("Coincident", 26, 3, -1, 1))
sketch4.addConstraint(Sketcher.Constraint("Coincident", 29, 3, -1, 1))
sketch4.addConstraint(Sketcher.Constraint("Coincident", 32, 3, -1, 1))
sketch4.addConstraint(Sketcher.Constraint("Coincident", 35, 3, -1, 1))
sketch4.addConstraint(Sketcher.Constraint("Coincident", 38, 3, -1, 1))
sketch4.addConstraint(Sketcher.Constraint("Coincident", 41, 3, -1, 1))
sketch4.addConstraint(Sketcher.Constraint("Coincident", 44, 3, -1, 1))
sketch4.addConstraint(Sketcher.Constraint("Coincident", 47, 3, -1, 1))
sketch4.addConstraint(Sketcher.Constraint("Coincident", 50, 3, -1, 1))
sketch4.addConstraint(Sketcher.Constraint("Coincident", 53, 3, -1, 1))
sketch4.addConstraint(Sketcher.Constraint("Coincident", 56, 3, -1, 1))
sketch4.addConstraint(Sketcher.Constraint("Coincident", 59, 3, -1, 1))
sketch4.addConstraint(Sketcher.Constraint("Equal", 2, 5))
sketch4.addConstraint(Sketcher.Constraint("Equal", 5, 8))
sketch4.addConstraint(Sketcher.Constraint("Equal", 8, 11))
sketch4.addConstraint(Sketcher.Constraint("Equal", 11, 14))
sketch4.addConstraint(Sketcher.Constraint("Equal", 14, 17))
sketch4.addConstraint(Sketcher.Constraint("Equal", 17, 20))
sketch4.addConstraint(Sketcher.Constraint("Equal", 20, 23))
sketch4.addConstraint(Sketcher.Constraint("Equal", 23, 26))
sketch4.addConstraint(Sketcher.Constraint("Equal", 26, 29))
sketch4.addConstraint(Sketcher.Constraint("Equal", 29, 32))
sketch4.addConstraint(Sketcher.Constraint("Equal", 32, 35))
sketch4.addConstraint(Sketcher.Constraint("Equal", 35, 38))
sketch4.addConstraint(Sketcher.Constraint("Equal", 38, 41))
sketch4.addConstraint(Sketcher.Constraint("Equal", 41, 44))
sketch4.addConstraint(Sketcher.Constraint("Equal", 44, 47))
sketch4.addConstraint(Sketcher.Constraint("Equal", 47, 50))
sketch4.addConstraint(Sketcher.Constraint("Equal", 50, 53))
sketch4.addConstraint(Sketcher.Constraint("Equal", 53, 56))
sketch4.addConstraint(Sketcher.Constraint("Equal", 56, 59))
sketch4.addConstraint(Sketcher.Constraint("Symmetric", 0, 2, 30, 2, -1, 1))
sketch4.addConstraint(Sketcher.Constraint("Symmetric", 3, 2, 33, 2, -1, 1))
sketch4.addConstraint(Sketcher.Constraint("Symmetric", 6, 2, 36, 2, -1, 1))
sketch4.addConstraint(Sketcher.Constraint("Symmetric", 9, 2, 39, 2, -1, 1))
sketch4.addConstraint(Sketcher.Constraint("Symmetric", 12, 2, 42, 2, -1, 1))
sketch4.addConstraint(Sketcher.Constraint("Symmetric", 15, 2, 45, 2, -1, 1))
sketch4.addConstraint(Sketcher.Constraint("Symmetric", 18, 2, 48, 2, -1, 1))
sketch4.addConstraint(Sketcher.Constraint("Symmetric", 21, 2, 51, 2, -1, 1))
sketch4.addConstraint(Sketcher.Constraint("Symmetric", 24, 2, 54, 2, -1, 1))
sketch4.addConstraint(Sketcher.Constraint("Symmetric", 27, 2, 57, 2, -1, 1))
sketch4.addConstraint(Sketcher.Constraint("Symmetric", 27, 2, 33, 2, -2))
sketch4.addConstraint(Sketcher.Constraint("Symmetric", 24, 2, 36, 2, -2))
sketch4.addConstraint(Sketcher.Constraint("Symmetric", 21, 2, 39, 2, -2))
sketch4.addConstraint(Sketcher.Constraint("Symmetric", 18, 2, 42, 2, -2))
sketch4.addConstraint(Sketcher.Constraint("PointOnObject", 0, 2, -2))
sketch4.addConstraint(Sketcher.Constraint("PointOnObject", 15, 2, -1))
sketch4.addConstraint(Sketcher.Constraint("Perpendicular", 0, 15))
sketch4.addConstraint(Sketcher.Constraint("Perpendicular", 1, 16))
sketch4.addConstraint(Sketcher.Constraint("Perpendicular", 3, 18))
sketch4.addConstraint(Sketcher.Constraint("Perpendicular", 4, 19))
sketch4.addConstraint(Sketcher.Constraint("Perpendicular", 6, 21))
sketch4.addConstraint(Sketcher.Constraint("Perpendicular", 7, 22))
sketch4.addConstraint(Sketcher.Constraint("Perpendicular", 9, 24))
sketch4.addConstraint(Sketcher.Constraint("Perpendicular", 10, 25))
sketch4.addConstraint(Sketcher.Constraint("Perpendicular", 12, 27))
sketch4.addConstraint(Sketcher.Constraint("Perpendicular", 13, 28))
sketch4.addConstraint(Sketcher.Constraint("Perpendicular", 15, 30))
sketch4.addConstraint(Sketcher.Constraint("Perpendicular", 16, 31))
sketch4.addConstraint(Sketcher.Constraint("Perpendicular", 18, 33))
sketch4.addConstraint(Sketcher.Constraint("Perpendicular", 19, 34))
sketch4.addConstraint(Sketcher.Constraint("Perpendicular", 21, 36))
sketch4.addConstraint(Sketcher.Constraint("Perpendicular", 22, 37))
sketch4.addConstraint(Sketcher.Constraint("Perpendicular", 24, 39))
sketch4.addConstraint(Sketcher.Constraint("Perpendicular", 25, 40))
sketch4.addConstraint(Sketcher.Constraint("Perpendicular", 27, 42))
sketch4.addConstraint(Sketcher.Constraint("Perpendicular", 28, 43))
sketch4.addConstraint(Sketcher.Constraint("Perpendicular", 30, 45))
sketch4.addConstraint(Sketcher.Constraint("Perpendicular", 31, 46))
sketch4.addConstraint(Sketcher.Constraint("Perpendicular", 33, 48))
sketch4.addConstraint(Sketcher.Constraint("Perpendicular", 34, 49))
sketch4.addConstraint(Sketcher.Constraint("Perpendicular", 36, 51))
sketch4.addConstraint(Sketcher.Constraint("Perpendicular", 37, 52))
sketch4.addConstraint(Sketcher.Constraint("Perpendicular", 39, 54))
sketch4.addConstraint(Sketcher.Constraint("Perpendicular", 40, 55))
sketch4.addConstraint(Sketcher.Constraint("Perpendicular", 42, 57))
sketch4.addConstraint(Sketcher.Constraint("Perpendicular", 43, 58))
sketch4.addConstraint(Sketcher.Constraint("Horizontal", 1, 2, 2, 2))
sketch4.addConstraint(Sketcher.Constraint("Horizontal", 29, 2, 34, 2))
sketch4.addConstraint(Sketcher.Constraint("Horizontal", 28, 2, 35, 2))
sketch4.addConstraint(Sketcher.Constraint("Horizontal", 26, 2, 37, 2))
sketch4.addConstraint(Sketcher.Constraint("Horizontal", 25, 2, 38, 2))
sketch4.addConstraint(Sketcher.Constraint("Equal", 1, 3))
sketch4.addConstraint(Sketcher.Constraint("Equal", 3, 4))
sketch4.addConstraint(Sketcher.Constraint("Equal", 4, 6))
sketch4.addConstraint(Sketcher.Constraint("Equal", 6, 7))
sketch4.addConstraint(Sketcher.Constraint("Equal", 7, 9))
sketch4.addConstraint(Sketcher.Constraint("Equal", 9, 10))
sketch4.addConstraint(Sketcher.Constraint("Equal", 10, 12))
sketch4.addConstraint(Sketcher.Constraint("Equal", 12, 13))
sketch4.addConstraint(Sketcher.Constraint("Equal", 13, 15))
sketch4.addConstraint(Sketcher.Constraint("Radius", 2, Q("2.55 mm")))
sketch4.addConstraint(Sketcher.Constraint("DistanceY", -1, 1, 0, 2, Q("2.05 mm")))
sketch4.addConstraint(Sketcher.Constraint("DistanceX", -1, 1, 7, 2, Q("1.6899 mm")))
sketch4.addConstraint(Sketcher.Constraint("Distance", 0, Q("0.546121 mm")))
sketch4.addConstraint(Sketcher.Constraint("DistanceX", -1, 1, 4, 2, Q("1.017078 mm")))
sketch4.addConstraint(Sketcher.Constraint("DistanceY", -1, 1, 5, 2, Q("2.489618 mm")))
sketch4.addConstraint(Sketcher.Constraint("DistanceX", -1, 1, 6, 2, Q("1.20496 mm")))
sketch4.setExpression("Constraints[159]", "Params.sketch4_radius")
pad3 = doc.addObject("PartDesign::Pad", "Pad002")
body.addObject(pad3)
pad3.Profile = sketch4
pad3.setExpression("Length", "Params.pad3_length")
pad3.Reversed = True

# Sketch on XY plane
sketch5 = doc.addObject("Sketcher::SketchObject", "Sketch004")
body.addObject(sketch5)
sketch5.AttachmentSupport = (doc.XY_Plane, [""])
sketch5.MapMode = "FlatFace"
sketch5.AttachmentOffset = App.Placement(V(0, 0, -2.5), App.Rotation())
sketch5.addGeometry(Part.Circle(V(0, 0, 0), V(0, 0, 1), 1.4), False)
sketch5.addConstraint(Sketcher.Constraint("Coincident", 0, 3, -1, 1))
sketch5.addConstraint(Sketcher.Constraint("Diameter", 0, Q("2.8 mm")))
sketch5.setExpression("Constraints[1]", "Params.sketch5_diameter")
pocket2 = doc.addObject("PartDesign::Pocket", "Pocket001")
body.addObject(pocket2)
pocket2.Profile = sketch5
pocket2.Type = "ThroughAll"

# Sketch on XY plane
sketch6 = doc.addObject("Sketcher::SketchObject", "Sketch005")
body.addObject(sketch6)
sketch6.AttachmentSupport = (doc.XY_Plane, [""])
sketch6.MapMode = "FlatFace"
sketch6.AttachmentOffset = App.Placement(V(0, 0, -2.4), App.Rotation())
sketch6.addGeometry(Part.Circle(V(8.5, 0, 0), V(0, 0, 1), 0.6), False)
sketch6.addConstraint(Sketcher.Constraint("PointOnObject", 0, 3, -1))
sketch6.addConstraint(Sketcher.Constraint("Diameter", 0, Q("1.2 mm")))
sketch6.addConstraint(Sketcher.Constraint("DistanceX", -1, 1, 0, 3, Q("8.540521 mm")))
sketch6.setExpression("Constraints[1]", "Params.sketch6_diameter")
pocket3 = doc.addObject("PartDesign::Pocket", "Pocket002")
body.addObject(pocket3)
pocket3.Profile = sketch6
pocket3.Type = "ThroughAll"
doc.recompute()

polarpattern = doc.addObject("PartDesign::PolarPattern", "PolarPattern")
body.addObject(polarpattern)
polarpattern.Originals = [pad2]
polarpattern.Axis = (doc.Z_Axis, [""])
polarpattern.Angle = 360
polarpattern.Occurrences = 4
body.Tip = polarpattern
doc.recompute()

polarpattern2 = doc.addObject("PartDesign::PolarPattern", "PolarPattern001")
body.addObject(polarpattern2)
polarpattern2.Originals = [pocket3]
polarpattern2.Axis = (doc.Z_Axis, [""])
polarpattern2.Angle = 360
polarpattern2.Occurrences = 4
body.Tip = polarpattern2

doc.recompute()
